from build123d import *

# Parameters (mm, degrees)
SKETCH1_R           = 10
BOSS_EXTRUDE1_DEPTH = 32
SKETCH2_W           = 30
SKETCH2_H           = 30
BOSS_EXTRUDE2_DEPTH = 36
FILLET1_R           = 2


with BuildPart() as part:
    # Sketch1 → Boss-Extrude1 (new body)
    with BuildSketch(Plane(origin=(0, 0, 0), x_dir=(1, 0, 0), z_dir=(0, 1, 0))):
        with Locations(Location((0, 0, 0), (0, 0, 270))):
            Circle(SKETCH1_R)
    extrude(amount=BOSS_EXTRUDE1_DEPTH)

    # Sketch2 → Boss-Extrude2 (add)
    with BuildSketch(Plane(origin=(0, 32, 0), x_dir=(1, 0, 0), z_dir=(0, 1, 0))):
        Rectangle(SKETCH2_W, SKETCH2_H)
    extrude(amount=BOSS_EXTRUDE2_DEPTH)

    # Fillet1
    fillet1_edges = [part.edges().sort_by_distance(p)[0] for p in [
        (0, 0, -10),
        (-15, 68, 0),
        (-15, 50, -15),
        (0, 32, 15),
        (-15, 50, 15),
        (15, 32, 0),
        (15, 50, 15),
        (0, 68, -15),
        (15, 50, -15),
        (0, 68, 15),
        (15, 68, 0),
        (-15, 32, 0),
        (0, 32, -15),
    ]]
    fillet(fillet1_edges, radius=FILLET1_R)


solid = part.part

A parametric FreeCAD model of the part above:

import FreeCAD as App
import Part
import Sketcher

V = App.Vector


def edges_at(feature, points):
    """Names of the edges that pass closest to the given points."""
    edges = feature.Shape.Edges
    near = lambda p: min(range(len(edges)), key=lambda i: edges[i].distToShape(Part.Vertex(*p))[0])
    return sorted({f"Edge{near(p) + 1}" for p in points})

doc = App.newDocument("Part")
body = doc.addObject("PartDesign::Body", "Body")

sketch1 = body.newObject("Sketcher::SketchObject", "Sketch")
sketch1.AttachmentSupport = (doc.getObject("XZ_Plane"), [""])
sketch1.MapMode = "FlatFace"
sketch1.addGeometry(Part.Circle(V(0, 0, 0), V(0, 0, 1), 10), False)
sketch1.addConstraint(Sketcher.Constraint("Coincident", 0, 3, -1, 1))
sketch1.addConstraint(Sketcher.Constraint("Diameter", 0, 20.0))
pad1 = body.newObject("PartDesign::Pad", "Pad")
pad1.Profile = sketch1
pad1.Length = 32
pad1.Reversed = True

sketch2 = body.newObject("Sketcher::SketchObject", "Sketch001")
sketch2.AttachmentSupport = (doc.getObject("XZ_Plane"), [""])
sketch2.MapMode = "FlatFace"
sketch2.AttachmentOffset = App.Placement(V(0, 0, -32), App.Rotation())
sketch2.addGeometry(Part.LineSegment(V(-15, -15, 0), V(-15, 15, 0)), False)
sketch2.addGeometry(Part.LineSegment(V(-15, 15, 0), V(15, 15, 0)), False)
sketch2.addGeometry(Part.LineSegment(V(15, 15, 0), V(15, -15, 0)), False)
sketch2.addGeometry(Part.LineSegment(V(15, -15, 0), V(-15, -15, 0)), False)
sketch2.addConstraint(Sketcher.Constraint("Coincident", 0, 2, 1, 1))
sketch2.addConstraint(Sketcher.Constraint("Coincident", 1, 2, 2, 1))
sketch2.addConstraint(Sketcher.Constraint("Coincident", 2, 2, 3, 1))
sketch2.addConstraint(Sketcher.Constraint("Coincident", 3, 2, 0, 1))
sketch2.addConstraint(Sketcher.Constraint("Vertical", 0))
sketch2.addConstraint(Sketcher.Constraint("Horizontal", 1))
sketch2.addConstraint(Sketcher.Constraint("Vertical", 2))
sketch2.addConstraint(Sketcher.Constraint("Horizontal", 3))
sketch2.addConstraint(Sketcher.Constraint("Symmetric", 0, 2, 2, 2, -1, 1))
sketch2.addConstraint(Sketcher.Constraint("Equal", 3, 0))
sketch2.addConstraint(Sketcher.Constraint("DistanceX", 1, 1, 1, 2, 30.0))
pad2 = body.newObject("PartDesign::Pad", "Pad001")
pad2.Profile = sketch2
pad2.Length = 36
pad2.Reversed = True
doc.recompute()

fillet = body.newObject("PartDesign::Fillet", "Fillet")
fillet.Base = (pad2, edges_at(pad2, [
    (0, 0, -10),
    (-15, 68, 0),
    (-15, 50, -15),
    (0, 32, 15),
    (-15, 50, 15),
    (15, 32, 0),
    (15, 50, 15),
    (0, 68, -15),
    (15, 50, -15),
    (0, 68, 15),
    (15, 68, 0),
    (-15, 32, 0),
    (0, 32, -15),
]))
fillet.Radius = 2

doc.recompute()
